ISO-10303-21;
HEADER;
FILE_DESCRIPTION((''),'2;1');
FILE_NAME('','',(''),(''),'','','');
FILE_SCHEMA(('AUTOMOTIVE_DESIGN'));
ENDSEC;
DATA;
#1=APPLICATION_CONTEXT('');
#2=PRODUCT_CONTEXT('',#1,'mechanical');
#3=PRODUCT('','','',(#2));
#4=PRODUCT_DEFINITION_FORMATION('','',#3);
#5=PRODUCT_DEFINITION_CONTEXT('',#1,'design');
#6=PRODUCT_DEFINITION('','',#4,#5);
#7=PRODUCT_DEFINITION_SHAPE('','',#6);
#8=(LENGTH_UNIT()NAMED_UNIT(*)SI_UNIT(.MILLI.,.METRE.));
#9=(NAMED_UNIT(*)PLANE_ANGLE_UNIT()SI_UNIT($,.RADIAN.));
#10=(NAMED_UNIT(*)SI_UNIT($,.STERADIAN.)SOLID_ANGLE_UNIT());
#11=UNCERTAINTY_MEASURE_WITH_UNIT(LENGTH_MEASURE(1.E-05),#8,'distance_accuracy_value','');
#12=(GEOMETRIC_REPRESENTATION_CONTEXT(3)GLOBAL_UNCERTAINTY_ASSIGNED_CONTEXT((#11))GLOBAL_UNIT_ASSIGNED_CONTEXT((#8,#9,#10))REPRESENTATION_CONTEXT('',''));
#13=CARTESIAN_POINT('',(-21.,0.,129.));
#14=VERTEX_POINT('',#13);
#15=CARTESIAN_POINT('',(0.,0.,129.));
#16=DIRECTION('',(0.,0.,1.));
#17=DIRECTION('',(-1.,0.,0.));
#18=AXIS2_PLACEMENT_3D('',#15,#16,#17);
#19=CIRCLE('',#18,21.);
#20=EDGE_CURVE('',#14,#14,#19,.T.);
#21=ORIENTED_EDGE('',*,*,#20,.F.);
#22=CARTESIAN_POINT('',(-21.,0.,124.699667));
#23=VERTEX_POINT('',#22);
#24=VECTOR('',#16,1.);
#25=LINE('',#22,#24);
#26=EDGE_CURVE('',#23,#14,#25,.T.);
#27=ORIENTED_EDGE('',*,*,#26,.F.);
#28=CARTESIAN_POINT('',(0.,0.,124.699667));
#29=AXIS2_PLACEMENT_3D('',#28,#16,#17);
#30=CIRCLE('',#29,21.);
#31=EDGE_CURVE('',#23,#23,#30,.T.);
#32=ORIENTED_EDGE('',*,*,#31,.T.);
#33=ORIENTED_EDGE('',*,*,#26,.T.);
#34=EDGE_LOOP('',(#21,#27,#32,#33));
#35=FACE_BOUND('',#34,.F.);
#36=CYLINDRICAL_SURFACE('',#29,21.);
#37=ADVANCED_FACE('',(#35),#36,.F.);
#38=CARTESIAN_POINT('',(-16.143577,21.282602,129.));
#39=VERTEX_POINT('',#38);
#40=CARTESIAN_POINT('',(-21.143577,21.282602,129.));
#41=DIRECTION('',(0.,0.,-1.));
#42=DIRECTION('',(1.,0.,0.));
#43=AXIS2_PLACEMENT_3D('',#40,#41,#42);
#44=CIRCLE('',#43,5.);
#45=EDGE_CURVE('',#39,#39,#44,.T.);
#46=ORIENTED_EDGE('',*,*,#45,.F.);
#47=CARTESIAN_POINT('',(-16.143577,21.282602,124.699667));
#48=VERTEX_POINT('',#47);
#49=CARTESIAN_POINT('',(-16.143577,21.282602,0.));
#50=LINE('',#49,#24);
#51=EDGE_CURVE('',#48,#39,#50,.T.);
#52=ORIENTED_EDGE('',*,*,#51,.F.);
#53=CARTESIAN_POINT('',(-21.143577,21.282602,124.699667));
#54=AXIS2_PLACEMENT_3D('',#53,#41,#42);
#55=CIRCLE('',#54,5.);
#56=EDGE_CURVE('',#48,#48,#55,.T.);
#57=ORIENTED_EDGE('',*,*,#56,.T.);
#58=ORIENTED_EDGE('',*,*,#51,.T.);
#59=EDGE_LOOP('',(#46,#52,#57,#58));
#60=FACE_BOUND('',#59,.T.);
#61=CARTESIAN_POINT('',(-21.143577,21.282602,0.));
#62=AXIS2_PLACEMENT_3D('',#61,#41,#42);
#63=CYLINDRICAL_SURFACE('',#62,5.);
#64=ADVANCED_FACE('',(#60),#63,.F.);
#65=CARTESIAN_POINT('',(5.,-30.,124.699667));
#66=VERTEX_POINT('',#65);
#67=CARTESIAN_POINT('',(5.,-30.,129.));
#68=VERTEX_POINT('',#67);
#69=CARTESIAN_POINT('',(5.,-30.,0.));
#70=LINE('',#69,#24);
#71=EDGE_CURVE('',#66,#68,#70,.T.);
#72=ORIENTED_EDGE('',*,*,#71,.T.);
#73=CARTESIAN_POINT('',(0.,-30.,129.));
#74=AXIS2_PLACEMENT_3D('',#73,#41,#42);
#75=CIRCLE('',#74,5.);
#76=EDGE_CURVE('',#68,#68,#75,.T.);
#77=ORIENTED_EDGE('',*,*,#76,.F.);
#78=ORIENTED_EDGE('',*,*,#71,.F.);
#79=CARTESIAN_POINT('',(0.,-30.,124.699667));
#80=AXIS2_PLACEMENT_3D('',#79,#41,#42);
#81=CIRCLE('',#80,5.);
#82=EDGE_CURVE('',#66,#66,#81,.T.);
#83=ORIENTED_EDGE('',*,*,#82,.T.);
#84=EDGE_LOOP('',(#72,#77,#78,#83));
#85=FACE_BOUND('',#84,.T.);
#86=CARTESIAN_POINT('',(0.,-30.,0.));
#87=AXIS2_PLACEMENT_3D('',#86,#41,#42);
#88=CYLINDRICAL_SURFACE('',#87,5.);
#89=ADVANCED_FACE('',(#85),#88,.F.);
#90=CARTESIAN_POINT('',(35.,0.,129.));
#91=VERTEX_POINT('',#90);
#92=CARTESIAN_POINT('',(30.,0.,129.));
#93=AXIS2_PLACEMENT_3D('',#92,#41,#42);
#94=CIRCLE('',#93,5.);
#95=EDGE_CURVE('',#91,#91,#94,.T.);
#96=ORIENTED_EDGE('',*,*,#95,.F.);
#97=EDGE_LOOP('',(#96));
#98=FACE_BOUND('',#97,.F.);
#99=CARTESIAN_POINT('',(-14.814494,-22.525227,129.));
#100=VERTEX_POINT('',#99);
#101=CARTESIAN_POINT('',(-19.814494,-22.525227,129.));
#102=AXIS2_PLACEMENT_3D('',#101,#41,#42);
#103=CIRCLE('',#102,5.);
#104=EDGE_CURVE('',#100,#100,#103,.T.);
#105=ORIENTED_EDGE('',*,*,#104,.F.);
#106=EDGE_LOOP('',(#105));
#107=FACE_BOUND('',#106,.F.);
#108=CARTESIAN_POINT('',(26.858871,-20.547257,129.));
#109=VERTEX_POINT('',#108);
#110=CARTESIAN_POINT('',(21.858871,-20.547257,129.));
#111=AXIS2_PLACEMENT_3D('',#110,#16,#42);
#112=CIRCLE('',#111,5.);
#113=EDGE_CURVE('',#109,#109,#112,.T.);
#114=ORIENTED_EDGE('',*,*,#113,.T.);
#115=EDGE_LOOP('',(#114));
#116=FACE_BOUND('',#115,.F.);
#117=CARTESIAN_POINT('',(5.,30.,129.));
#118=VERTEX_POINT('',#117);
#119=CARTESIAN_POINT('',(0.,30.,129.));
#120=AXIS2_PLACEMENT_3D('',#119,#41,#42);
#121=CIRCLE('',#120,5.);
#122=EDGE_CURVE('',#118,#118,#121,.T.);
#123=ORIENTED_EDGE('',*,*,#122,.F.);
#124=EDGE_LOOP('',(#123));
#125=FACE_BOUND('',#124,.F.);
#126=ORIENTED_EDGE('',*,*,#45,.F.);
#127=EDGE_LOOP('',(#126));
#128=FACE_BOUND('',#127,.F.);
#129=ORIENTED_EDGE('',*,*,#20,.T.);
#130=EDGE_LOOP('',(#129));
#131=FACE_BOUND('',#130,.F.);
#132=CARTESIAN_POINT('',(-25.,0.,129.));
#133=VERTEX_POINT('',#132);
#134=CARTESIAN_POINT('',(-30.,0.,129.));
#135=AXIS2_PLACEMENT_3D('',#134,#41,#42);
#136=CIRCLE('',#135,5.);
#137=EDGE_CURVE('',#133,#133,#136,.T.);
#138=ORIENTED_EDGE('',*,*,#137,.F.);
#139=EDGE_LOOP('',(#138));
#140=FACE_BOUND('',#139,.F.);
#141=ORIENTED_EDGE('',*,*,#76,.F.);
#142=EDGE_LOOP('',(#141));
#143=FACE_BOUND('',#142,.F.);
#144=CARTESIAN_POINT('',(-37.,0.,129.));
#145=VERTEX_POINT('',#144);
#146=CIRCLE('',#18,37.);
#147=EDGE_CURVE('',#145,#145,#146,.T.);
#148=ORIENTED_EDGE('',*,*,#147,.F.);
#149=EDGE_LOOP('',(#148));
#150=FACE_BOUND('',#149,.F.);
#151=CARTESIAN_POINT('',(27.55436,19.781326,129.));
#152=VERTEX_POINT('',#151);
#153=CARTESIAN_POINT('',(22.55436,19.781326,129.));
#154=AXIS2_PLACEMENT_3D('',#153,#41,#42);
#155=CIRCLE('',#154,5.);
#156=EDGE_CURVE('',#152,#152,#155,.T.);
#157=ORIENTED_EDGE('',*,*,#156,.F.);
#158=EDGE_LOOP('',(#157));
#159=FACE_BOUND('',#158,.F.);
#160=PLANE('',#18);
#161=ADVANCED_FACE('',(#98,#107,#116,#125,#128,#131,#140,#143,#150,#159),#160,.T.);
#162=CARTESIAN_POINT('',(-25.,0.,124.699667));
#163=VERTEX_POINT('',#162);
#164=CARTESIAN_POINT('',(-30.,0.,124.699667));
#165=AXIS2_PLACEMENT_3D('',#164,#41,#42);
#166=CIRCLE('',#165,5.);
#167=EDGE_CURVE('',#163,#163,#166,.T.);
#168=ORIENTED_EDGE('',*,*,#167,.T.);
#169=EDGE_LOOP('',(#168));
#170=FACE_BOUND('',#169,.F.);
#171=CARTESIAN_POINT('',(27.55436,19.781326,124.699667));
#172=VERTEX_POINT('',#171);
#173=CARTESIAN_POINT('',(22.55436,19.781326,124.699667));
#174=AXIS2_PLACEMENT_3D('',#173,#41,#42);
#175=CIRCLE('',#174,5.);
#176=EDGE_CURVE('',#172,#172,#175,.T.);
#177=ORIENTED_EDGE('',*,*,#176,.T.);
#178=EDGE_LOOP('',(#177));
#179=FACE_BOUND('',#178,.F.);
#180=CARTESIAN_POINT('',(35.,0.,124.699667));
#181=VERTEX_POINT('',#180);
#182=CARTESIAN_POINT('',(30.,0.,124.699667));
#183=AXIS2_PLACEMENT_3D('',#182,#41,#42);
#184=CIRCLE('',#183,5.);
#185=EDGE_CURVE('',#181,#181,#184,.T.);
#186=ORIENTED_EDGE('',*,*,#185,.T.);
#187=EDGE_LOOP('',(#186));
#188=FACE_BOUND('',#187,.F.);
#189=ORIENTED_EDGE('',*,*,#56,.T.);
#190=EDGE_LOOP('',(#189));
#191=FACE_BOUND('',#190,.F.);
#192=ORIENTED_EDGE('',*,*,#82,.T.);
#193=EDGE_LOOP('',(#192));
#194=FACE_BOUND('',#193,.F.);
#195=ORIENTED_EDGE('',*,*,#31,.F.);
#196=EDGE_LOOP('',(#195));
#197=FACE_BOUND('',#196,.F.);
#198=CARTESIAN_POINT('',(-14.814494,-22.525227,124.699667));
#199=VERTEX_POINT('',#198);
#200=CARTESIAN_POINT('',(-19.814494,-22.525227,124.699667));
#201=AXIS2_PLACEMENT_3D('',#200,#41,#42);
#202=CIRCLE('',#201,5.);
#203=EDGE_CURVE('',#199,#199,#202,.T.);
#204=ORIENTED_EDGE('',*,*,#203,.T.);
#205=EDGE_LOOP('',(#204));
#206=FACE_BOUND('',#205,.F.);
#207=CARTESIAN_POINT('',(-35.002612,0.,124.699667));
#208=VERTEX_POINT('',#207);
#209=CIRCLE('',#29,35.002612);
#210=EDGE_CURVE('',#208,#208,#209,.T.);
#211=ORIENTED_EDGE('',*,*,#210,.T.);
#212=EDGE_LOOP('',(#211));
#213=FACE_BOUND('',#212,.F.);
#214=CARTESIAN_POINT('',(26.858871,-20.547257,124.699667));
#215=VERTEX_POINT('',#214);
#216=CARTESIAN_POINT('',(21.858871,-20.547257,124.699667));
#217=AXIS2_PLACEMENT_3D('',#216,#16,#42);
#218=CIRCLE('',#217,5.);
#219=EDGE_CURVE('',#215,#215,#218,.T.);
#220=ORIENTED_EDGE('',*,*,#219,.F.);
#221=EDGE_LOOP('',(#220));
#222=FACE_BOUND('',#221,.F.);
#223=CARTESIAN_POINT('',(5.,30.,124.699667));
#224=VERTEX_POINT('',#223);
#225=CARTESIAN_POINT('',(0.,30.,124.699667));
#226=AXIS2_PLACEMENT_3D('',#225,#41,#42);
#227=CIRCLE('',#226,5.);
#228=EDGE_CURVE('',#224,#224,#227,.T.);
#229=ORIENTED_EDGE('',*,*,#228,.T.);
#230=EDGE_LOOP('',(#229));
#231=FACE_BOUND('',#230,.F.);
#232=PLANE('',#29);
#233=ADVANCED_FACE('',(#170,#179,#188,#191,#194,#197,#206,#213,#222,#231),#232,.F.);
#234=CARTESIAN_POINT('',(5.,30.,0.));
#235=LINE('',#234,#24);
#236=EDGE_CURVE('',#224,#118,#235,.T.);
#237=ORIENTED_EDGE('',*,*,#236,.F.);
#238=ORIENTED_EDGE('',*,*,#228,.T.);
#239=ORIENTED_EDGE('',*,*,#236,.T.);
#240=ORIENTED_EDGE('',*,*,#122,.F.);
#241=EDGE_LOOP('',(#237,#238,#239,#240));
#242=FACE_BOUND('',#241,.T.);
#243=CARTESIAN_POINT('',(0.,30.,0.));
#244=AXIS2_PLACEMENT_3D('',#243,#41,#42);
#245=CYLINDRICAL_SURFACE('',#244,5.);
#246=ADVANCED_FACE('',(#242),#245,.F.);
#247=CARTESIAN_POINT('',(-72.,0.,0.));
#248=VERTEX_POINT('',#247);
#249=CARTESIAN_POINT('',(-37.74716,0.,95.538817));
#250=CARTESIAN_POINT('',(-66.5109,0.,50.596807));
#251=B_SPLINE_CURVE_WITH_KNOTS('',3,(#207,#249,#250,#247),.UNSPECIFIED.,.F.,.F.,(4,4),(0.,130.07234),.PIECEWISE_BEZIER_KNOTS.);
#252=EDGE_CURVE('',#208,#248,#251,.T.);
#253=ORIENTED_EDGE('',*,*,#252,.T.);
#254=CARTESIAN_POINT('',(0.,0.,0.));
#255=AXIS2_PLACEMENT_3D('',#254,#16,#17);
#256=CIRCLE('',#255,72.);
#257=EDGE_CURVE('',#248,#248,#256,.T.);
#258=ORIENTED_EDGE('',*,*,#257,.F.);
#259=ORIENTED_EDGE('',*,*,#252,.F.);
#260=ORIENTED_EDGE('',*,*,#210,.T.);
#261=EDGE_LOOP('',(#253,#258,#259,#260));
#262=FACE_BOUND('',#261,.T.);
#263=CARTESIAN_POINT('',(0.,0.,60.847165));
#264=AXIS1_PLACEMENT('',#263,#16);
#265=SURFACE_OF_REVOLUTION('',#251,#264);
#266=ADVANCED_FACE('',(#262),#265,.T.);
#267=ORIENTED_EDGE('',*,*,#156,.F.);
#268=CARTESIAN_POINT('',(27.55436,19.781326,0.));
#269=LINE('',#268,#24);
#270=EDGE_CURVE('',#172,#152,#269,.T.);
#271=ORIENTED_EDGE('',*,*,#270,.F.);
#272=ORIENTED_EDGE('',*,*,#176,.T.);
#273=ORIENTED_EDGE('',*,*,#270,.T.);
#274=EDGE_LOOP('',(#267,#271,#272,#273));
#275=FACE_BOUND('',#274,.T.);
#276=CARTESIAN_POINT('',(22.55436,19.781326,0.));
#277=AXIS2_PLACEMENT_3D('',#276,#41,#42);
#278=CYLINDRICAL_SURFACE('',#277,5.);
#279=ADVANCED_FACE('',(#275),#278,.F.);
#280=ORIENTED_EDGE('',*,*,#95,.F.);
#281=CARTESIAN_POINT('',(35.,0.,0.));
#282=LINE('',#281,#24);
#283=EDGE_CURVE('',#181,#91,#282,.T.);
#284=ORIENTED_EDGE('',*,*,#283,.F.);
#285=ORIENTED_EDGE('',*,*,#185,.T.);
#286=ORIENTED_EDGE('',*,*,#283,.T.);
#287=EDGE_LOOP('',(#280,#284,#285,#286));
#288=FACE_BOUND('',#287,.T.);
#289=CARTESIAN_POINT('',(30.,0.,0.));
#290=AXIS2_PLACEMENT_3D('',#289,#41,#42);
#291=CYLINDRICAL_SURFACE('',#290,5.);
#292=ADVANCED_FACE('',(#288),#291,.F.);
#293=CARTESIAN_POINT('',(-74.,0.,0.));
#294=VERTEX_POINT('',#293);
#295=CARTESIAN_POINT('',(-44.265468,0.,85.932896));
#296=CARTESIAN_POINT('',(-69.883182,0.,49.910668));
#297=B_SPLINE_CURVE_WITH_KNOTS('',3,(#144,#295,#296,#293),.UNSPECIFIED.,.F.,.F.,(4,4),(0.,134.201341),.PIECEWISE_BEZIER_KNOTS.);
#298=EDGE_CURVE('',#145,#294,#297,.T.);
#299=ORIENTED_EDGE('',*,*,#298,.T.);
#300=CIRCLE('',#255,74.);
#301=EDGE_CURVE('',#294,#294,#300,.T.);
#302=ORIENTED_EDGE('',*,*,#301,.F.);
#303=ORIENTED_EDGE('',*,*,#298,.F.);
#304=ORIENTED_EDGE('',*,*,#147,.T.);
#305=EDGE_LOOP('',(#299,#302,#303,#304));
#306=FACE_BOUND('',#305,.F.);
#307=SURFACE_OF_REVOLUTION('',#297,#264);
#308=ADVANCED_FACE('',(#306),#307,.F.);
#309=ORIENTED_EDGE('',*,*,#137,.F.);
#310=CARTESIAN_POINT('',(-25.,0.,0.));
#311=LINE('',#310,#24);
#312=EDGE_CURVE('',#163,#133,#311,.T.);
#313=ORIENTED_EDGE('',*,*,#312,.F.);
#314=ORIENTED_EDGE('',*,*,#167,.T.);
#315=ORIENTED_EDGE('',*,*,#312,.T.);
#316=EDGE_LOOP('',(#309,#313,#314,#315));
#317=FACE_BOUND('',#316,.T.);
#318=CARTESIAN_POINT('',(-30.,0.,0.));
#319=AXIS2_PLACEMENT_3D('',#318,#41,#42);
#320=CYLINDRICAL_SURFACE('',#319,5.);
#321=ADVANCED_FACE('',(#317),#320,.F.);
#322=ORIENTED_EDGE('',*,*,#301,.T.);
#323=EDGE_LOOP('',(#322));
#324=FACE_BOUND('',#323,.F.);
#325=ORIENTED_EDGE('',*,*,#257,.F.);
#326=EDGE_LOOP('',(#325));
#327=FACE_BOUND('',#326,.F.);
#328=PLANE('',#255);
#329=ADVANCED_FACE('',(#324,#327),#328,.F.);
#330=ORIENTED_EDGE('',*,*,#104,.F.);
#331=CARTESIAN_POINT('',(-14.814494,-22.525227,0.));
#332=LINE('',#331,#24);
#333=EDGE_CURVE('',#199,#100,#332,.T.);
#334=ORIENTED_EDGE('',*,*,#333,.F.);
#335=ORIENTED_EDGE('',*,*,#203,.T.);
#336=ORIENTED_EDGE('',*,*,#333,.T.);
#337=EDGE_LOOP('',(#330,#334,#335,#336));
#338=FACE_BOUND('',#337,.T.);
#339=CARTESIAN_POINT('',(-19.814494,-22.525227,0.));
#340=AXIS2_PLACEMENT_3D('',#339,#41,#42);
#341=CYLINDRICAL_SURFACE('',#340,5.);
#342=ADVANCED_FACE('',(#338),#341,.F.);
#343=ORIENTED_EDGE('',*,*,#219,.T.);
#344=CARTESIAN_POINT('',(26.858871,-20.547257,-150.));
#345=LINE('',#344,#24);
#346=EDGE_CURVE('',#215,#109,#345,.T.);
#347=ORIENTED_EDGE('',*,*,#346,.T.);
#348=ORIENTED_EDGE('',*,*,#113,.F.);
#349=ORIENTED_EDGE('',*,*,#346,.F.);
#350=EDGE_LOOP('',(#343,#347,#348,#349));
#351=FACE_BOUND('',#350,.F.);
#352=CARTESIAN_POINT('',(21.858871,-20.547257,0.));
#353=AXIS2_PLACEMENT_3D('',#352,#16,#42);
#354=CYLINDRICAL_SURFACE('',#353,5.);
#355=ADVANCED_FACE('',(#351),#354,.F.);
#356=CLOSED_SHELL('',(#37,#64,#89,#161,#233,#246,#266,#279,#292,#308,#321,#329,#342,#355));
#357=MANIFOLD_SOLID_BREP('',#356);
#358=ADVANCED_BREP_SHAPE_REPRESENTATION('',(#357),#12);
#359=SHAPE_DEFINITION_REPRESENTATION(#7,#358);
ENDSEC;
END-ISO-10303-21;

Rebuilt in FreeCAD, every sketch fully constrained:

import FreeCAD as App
import Part
import Sketcher
from FreeCAD import Vector
Q = App.Units.Quantity

doc = App.newDocument("Part")
body = doc.addObject("PartDesign::Body", "Body")

# Sketch on XZ plane
sketch1 = body.newObject("Sketcher::SketchObject", "Sketch")
sketch1.AttachmentSupport = (doc.getObject("XZ_Plane"), [""])
sketch1.MapMode = "FlatFace"
sketch1.addGeometry([
    Part.LineSegment(Vector(-21, 129, 0), Vector(-37, 129, 0)),  # 0
    Part.BSplineCurve([Vector(-37, 129, 0), Vector(-44.265468, 85.932896, 0), Vector(-69.883182, 49.910668, 0), Vector(-74, 0, 0)], [4, 4], [0, 134.201341], False, 3, [1, 1, 1, 1], False),  # 1
    Part.LineSegment(Vector(-74, 0, 0), Vector(-72, 0, 0)),  # 2
    Part.BSplineCurve([Vector(-35.002612, 124.699667, 0), Vector(-37.74716, 95.538817, 0), Vector(-66.5109, 50.596807, 0), Vector(-72, 0, 0)], [4, 4], [0, 130.07234], False, 3, [1, 1, 1, 1], False),  # 3
    Part.LineSegment(Vector(-35.002612, 124.699667, 0), Vector(-21, 124.699667, 0)),  # 4
    Part.LineSegment(Vector(-21, 124.699667, 0), Vector(-21, 129, 0)),  # 5
], False)
sketch1.addConstraint([
    Sketcher.Constraint("Block", 1),
    Sketcher.Constraint("Block", 3),
    Sketcher.Constraint("Coincident", 0, 2, 1, 1),
    Sketcher.Constraint("Coincident", 1, 2, 2, 1),
    Sketcher.Constraint("Coincident", 2, 2, 3, 2),
    Sketcher.Constraint("Coincident", 3, 1, 4, 1),
    Sketcher.Constraint("Coincident", 4, 2, 5, 1),
    Sketcher.Constraint("Coincident", 5, 2, 0, 1),
    Sketcher.Constraint("Horizontal", 0),
    Sketcher.Constraint("Horizontal", 4),
    Sketcher.Constraint("Vertical", 5),
    Sketcher.Constraint("DistanceX", 0, 2, 0, 1, Q("16 mm")),
])
revolution = body.newObject("PartDesign::Revolution", "Revolution")
revolution.Profile = sketch1
revolution.ReferenceAxis = (sketch1, ["V_Axis"])
revolution.Angle = 360

# Sketch on XY plane
sketch2 = body.newObject("Sketcher::SketchObject", "Sketch001")
sketch2.AttachmentSupport = (doc.getObject("XY_Plane"), [""])
sketch2.MapMode = "FlatFace"
sketch2.addGeometry([
    Part.Circle(Vector(0, 30, 0), Vector(0, 0, 1), 5),  # 0
    Part.Circle(Vector(-30, 0, 0), Vector(0, 0, 1), 5),  # 1
    Part.Circle(Vector(0, -30, 0), Vector(0, 0, 1), 5),  # 2
    Part.Circle(Vector(30, 0, 0), Vector(0, 0, 1), 5),  # 3
    Part.Circle(Vector(-19.814494, -22.525227, 0), Vector(0, 0, 1), 5),  # 4
    Part.Circle(Vector(22.55436, 19.781326, 0), Vector(0, 0, 1), 5),  # 5
    Part.Circle(Vector(-21.143577, 21.282602, 0), Vector(0, 0, 1), 5),  # 6
    Part.Circle(Vector(21.858871, -20.547257, 0), Vector(0, 0, 1), 5),  # 7
], False)
sketch2.addConstraint([
    Sketcher.Constraint("Equal", 0, 1),
    Sketcher.Constraint("Equal", 1, 2),
    Sketcher.Constraint("Equal", 2, 3),
    Sketcher.Constraint("Equal", 3, 4),
    Sketcher.Constraint("Equal", 4, 5),
    Sketcher.Constraint("Equal", 5, 6),
    Sketcher.Constraint("Equal", 6, 7),
    Sketcher.Constraint("Symmetric", 0, 3, 2, 3, -1, 1),
    Sketcher.Constraint("Symmetric", 1, 3, 3, 3, -1, 1),
    Sketcher.Constraint("PointOnObject", 0, 3, -2),
    Sketcher.Constraint("PointOnObject", 1, 3, -1),
    Sketcher.Constraint("Diameter", 0, Q("10 mm")),
    Sketcher.Constraint("DistanceY", -1, 1, 0, 3, Q("30 mm")),
    Sketcher.Constraint("DistanceX", 1, 3, -1, 1, Q("30 mm")),
    Sketcher.Constraint("DistanceX", -1, 1, 5, 3, Q("22.55436 mm")),
    Sketcher.Constraint("DistanceX", -1, 1, 7, 3, Q("21.858871 mm")),
    Sketcher.Constraint("DistanceY", 4, 3, 6, 3, Q("43.807829 mm")),
    Sketcher.Constraint("DistanceY", 4, 3, 7, 3, Q("1.97797 mm")),
    Sketcher.Constraint("DistanceX", 4, 3, -1, 1, Q("19.814494 mm")),
    Sketcher.Constraint("DistanceY", 4, 3, -1, 1, Q("22.525227 mm")),
    Sketcher.Constraint("DistanceY", -1, 1, 5, 3, Q("19.781326 mm")),
    Sketcher.Constraint("DistanceX", 6, 3, -1, 1, Q("21.143577 mm")),
])
pocket1 = body.newObject("PartDesign::Pocket", "Pocket")
pocket1.Profile = sketch2
pocket1.Length = 300
pocket1.Midplane = True

doc.recompute()
